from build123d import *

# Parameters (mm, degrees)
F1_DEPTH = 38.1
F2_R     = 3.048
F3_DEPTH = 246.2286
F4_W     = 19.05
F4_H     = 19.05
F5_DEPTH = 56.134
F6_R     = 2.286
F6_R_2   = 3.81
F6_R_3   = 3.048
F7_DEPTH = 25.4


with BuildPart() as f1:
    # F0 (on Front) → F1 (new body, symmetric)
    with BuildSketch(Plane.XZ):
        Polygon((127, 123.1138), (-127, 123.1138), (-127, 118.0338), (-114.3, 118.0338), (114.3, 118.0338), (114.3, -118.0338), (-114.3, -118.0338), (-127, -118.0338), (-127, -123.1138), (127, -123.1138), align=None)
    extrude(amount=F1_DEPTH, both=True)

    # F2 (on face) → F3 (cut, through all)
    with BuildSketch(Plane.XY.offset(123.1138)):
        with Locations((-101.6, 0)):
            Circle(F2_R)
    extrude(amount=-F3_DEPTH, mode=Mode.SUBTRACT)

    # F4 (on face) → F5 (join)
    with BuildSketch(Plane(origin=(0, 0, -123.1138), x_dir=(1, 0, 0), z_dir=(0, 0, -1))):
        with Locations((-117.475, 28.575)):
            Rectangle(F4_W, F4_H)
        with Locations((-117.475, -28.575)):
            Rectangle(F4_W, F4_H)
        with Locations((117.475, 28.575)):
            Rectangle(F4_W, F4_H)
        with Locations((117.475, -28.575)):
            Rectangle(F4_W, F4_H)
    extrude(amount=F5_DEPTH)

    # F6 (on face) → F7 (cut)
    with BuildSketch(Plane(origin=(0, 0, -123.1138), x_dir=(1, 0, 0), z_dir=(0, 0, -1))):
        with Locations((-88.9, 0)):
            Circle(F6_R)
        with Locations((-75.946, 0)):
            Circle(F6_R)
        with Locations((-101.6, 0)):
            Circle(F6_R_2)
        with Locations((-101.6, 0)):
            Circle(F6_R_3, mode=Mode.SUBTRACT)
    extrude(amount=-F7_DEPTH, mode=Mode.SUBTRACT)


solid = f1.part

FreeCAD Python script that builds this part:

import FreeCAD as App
import Part
import Sketcher
Q = App.Units.Quantity

doc = App.newDocument("Part")
body = doc.addObject("PartDesign::Body", "Body")

sketch1 = body.newObject("Sketcher::SketchObject", "Sketch")
sketch1.AttachmentSupport = (doc.getObject("XZ_Plane"), [""])
sketch1.MapMode = "FlatFace"
sketch1.addGeometry(Part.LineSegment(App.Vector(127, 123, 0), App.Vector(-127, 123, 0)), False)
sketch1.addGeometry(Part.LineSegment(App.Vector(-127, 123, 0), App.Vector(-127, 118, 0)), False)
sketch1.addGeometry(Part.LineSegment(App.Vector(-127, 118, 0), App.Vector(114, 118, 0)), False)
sketch1.addGeometry(Part.LineSegment(App.Vector(114, 118, 0), App.Vector(114, -118, 0)), False)
sketch1.addGeometry(Part.LineSegment(App.Vector(114, -118, 0), App.Vector(-127, -118, 0)), False)
sketch1.addGeometry(Part.LineSegment(App.Vector(-127, -118, 0), App.Vector(-127, -123, 0)), False)
sketch1.addGeometry(Part.LineSegment(App.Vector(-127, -123, 0), App.Vector(127, -123, 0)), False)
sketch1.addGeometry(Part.LineSegment(App.Vector(127, -123, 0), App.Vector(127, 123, 0)), False)
sketch1.addConstraint(Sketcher.Constraint("Coincident", 0, 2, 1, 1))
sketch1.addConstraint(Sketcher.Constraint("Coincident", 1, 2, 2, 1))
sketch1.addConstraint(Sketcher.Constraint("Coincident", 2, 2, 3, 1))
sketch1.addConstraint(Sketcher.Constraint("Coincident", 3, 2, 4, 1))
sketch1.addConstraint(Sketcher.Constraint("Coincident", 4, 2, 5, 1))
sketch1.addConstraint(Sketcher.Constraint("Coincident", 5, 2, 6, 1))
sketch1.addConstraint(Sketcher.Constraint("Coincident", 6, 2, 7, 1))
sketch1.addConstraint(Sketcher.Constraint("Coincident", 7, 2, 0, 1))
sketch1.addConstraint(Sketcher.Constraint("Horizontal", 0))
sketch1.addConstraint(Sketcher.Constraint("Vertical", 1))
sketch1.addConstraint(Sketcher.Constraint("Horizontal", 2))
sketch1.addConstraint(Sketcher.Constraint("Vertical", 3))
sketch1.addConstraint(Sketcher.Constraint("Horizontal", 4))
sketch1.addConstraint(Sketcher.Constraint("Vertical", 5))
sketch1.addConstraint(Sketcher.Constraint("Horizontal", 6))
sketch1.addConstraint(Sketcher.Constraint("Vertical", 7))
sketch1.addConstraint(Sketcher.Constraint("Symmetric", 0, 2, 6, 2, -1, 1))
sketch1.addConstraint(Sketcher.Constraint("Symmetric", 1, 2, 4, 2, -1))
sketch1.addConstraint(Sketcher.Constraint("DistanceX", 0, 2, 0, 1, Q("10 in")))
sketch1.addConstraint(Sketcher.Constraint("DistanceX", 2, 1, 2, 2, Q("9.5 in")))
sketch1.addConstraint(Sketcher.Constraint("DistanceY", 1, 2, 1, 1, Q("0.2 in")))
sketch1.addConstraint(Sketcher.Constraint("DistanceY", 3, 2, 3, 1, Q("9.294 in")))
pad1 = body.newObject("PartDesign::Pad", "Pad")
pad1.Profile = sketch1
pad1.Length = Q("3 in")
pad1.Midplane = True

sketch2 = body.newObject("Sketcher::SketchObject", "Sketch001")
sketch2.AttachmentSupport = (doc.getObject("XY_Plane"), [""])
sketch2.MapMode = "FlatFace"
sketch2.AttachmentOffset = App.Placement(App.Vector(0, 0, 4.847 * 25.4), App.Rotation())
sketch2.addGeometry(Part.Circle(App.Vector(-101.6, 0, 0), App.Vector(0, 0, 1), 3), False)
sketch2.addConstraint(Sketcher.Constraint("PointOnObject", 0, 3, -1))
sketch2.addConstraint(Sketcher.Constraint("Diameter", 0, Q("0.24 in")))
sketch2.addConstraint(Sketcher.Constraint("DistanceX", 0, 3, -1, 1, Q("4 in")))
pocket1 = body.newObject("PartDesign::Pocket", "Pocket")
pocket1.Profile = sketch2
pocket1.Type = "ThroughAll"

sketch3 = body.newObject("Sketcher::SketchObject", "Sketch002")
sketch3.AttachmentSupport = (doc.getObject("XY_Plane"), [""])
sketch3.MapMode = "FlatFace"
sketch3.AttachmentOffset = App.Placement(App.Vector(0, 0, -4.847 * 25.4), App.Rotation())
sketch3.addGeometry(Part.LineSegment(App.Vector(-127, -38, 0), App.Vector(-127, -19, 0)), False)
sketch3.addGeometry(Part.LineSegment(App.Vector(-127, -19, 0), App.Vector(-108, -19, 0)), False)
sketch3.addGeometry(Part.LineSegment(App.Vector(-108, -19, 0), App.Vector(-108, -38, 0)), False)
sketch3.addGeometry(Part.LineSegment(App.Vector(-108, -38, 0), App.Vector(-127, -38, 0)), False)
sketch3.addGeometry(Part.LineSegment(App.Vector(-127, 19, 0), App.Vector(-127, 38, 0)), False)
sketch3.addGeometry(Part.LineSegment(App.Vector(-127, 38, 0), App.Vector(-108, 38, 0)), False)
sketch3.addGeometry(Part.LineSegment(App.Vector(-108, 38, 0), App.Vector(-108, 19, 0)), False)
sketch3.addGeometry(Part.LineSegment(App.Vector(-108, 19, 0), App.Vector(-127, 19, 0)), False)
sketch3.addGeometry(Part.LineSegment(App.Vector(108, -38, 0), App.Vector(108, -19, 0)), False)
sketch3.addGeometry(Part.LineSegment(App.Vector(108, -19, 0), App.Vector(127, -19, 0)), False)
sketch3.addGeometry(Part.LineSegment(App.Vector(127, -19, 0), App.Vector(127, -38, 0)), False)
sketch3.addGeometry(Part.LineSegment(App.Vector(127, -38, 0), App.Vector(108, -38, 0)), False)
sketch3.addGeometry(Part.LineSegment(App.Vector(108, 19, 0), App.Vector(108, 38, 0)), False)
sketch3.addGeometry(Part.LineSegment(App.Vector(108, 38, 0), App.Vector(127, 38, 0)), False)
sketch3.addGeometry(Part.LineSegment(App.Vector(127, 38, 0), App.Vector(127, 19, 0)), False)
sketch3.addGeometry(Part.LineSegment(App.Vector(127, 19, 0), App.Vector(108, 19, 0)), False)
sketch3.addConstraint(Sketcher.Constraint("Coincident", 0, 2, 1, 1))
sketch3.addConstraint(Sketcher.Constraint("Coincident", 1, 2, 2, 1))
sketch3.addConstraint(Sketcher.Constraint("Coincident", 2, 2, 3, 1))
sketch3.addConstraint(Sketcher.Constraint("Coincident", 3, 2, 0, 1))
sketch3.addConstraint(Sketcher.Constraint("Coincident", 4, 2, 5, 1))
sketch3.addConstraint(Sketcher.Constraint("Coincident", 5, 2, 6, 1))
sketch3.addConstraint(Sketcher.Constraint("Coincident", 6, 2, 7, 1))
sketch3.addConstraint(Sketcher.Constraint("Coincident", 7, 2, 4, 1))
sketch3.addConstraint(Sketcher.Constraint("Coincident", 8, 2, 9, 1))
sketch3.addConstraint(Sketcher.Constraint("Coincident", 9, 2, 10, 1))
sketch3.addConstraint(Sketcher.Constraint("Coincident", 10, 2, 11, 1))
sketch3.addConstraint(Sketcher.Constraint("Coincident", 11, 2, 8, 1))
sketch3.addConstraint(Sketcher.Constraint("Coincident", 12, 2, 13, 1))
sketch3.addConstraint(Sketcher.Constraint("Coincident", 13, 2, 14, 1))
sketch3.addConstraint(Sketcher.Constraint("Coincident", 14, 2, 15, 1))
sketch3.addConstraint(Sketcher.Constraint("Coincident", 15, 2, 12, 1))
sketch3.addConstraint(Sketcher.Constraint("Vertical", 0))
sketch3.addConstraint(Sketcher.Constraint("Horizontal", 1))
sketch3.addConstraint(Sketcher.Constraint("Vertical", 2))
sketch3.addConstraint(Sketcher.Constraint("Horizontal", 3))
sketch3.addConstraint(Sketcher.Constraint("Vertical", 4))
sketch3.addConstraint(Sketcher.Constraint("Horizontal", 5))
sketch3.addConstraint(Sketcher.Constraint("Vertical", 6))
sketch3.addConstraint(Sketcher.Constraint("Horizontal", 7))
sketch3.addConstraint(Sketcher.Constraint("Vertical", 8))
sketch3.addConstraint(Sketcher.Constraint("Horizontal", 9))
sketch3.addConstraint(Sketcher.Constraint("Vertical", 10))
sketch3.addConstraint(Sketcher.Constraint("Horizontal", 11))
sketch3.addConstraint(Sketcher.Constraint("Vertical", 12))
sketch3.addConstraint(Sketcher.Constraint("Horizontal", 13))
sketch3.addConstraint(Sketcher.Constraint("Vertical", 14))
sketch3.addConstraint(Sketcher.Constraint("Horizontal", 15))
sketch3.addConstraint(Sketcher.Constraint("Symmetric", 6, 2, 8, 2, -1, 1))
sketch3.addConstraint(Sketcher.Constraint("Symmetric", 4, 2, 10, 2, -1, 1))
sketch3.addConstraint(Sketcher.Constraint("Symmetric", 2, 2, 12, 2, -1, 1))
sketch3.addConstraint(Sketcher.Constraint("Symmetric", 0, 2, 14, 2, -1, 1))
sketch3.addConstraint(Sketcher.Constraint("Symmetric", 1, 2, 8, 2, -2))
sketch3.addConstraint(Sketcher.Constraint("Symmetric", 3, 2, 10, 2, -2))
sketch3.addConstraint(Sketcher.Constraint("Equal", 15, 0))
sketch3.addConstraint(Sketcher.Constraint("DistanceX", 0, 2, -1, 1, Q("5 in")))
sketch3.addConstraint(Sketcher.Constraint("DistanceY", 3, 2, 4, 2, Q("3 in")))
sketch3.addConstraint(Sketcher.Constraint("DistanceX", 1, 1, 1, 2, Q("0.75 in")))
pad2 = body.newObject("PartDesign::Pad", "Pad001")
pad2.Profile = sketch3
pad2.Length = Q("2.21 in")
pad2.Reversed = True

sketch4 = body.newObject("Sketcher::SketchObject", "Sketch003")
sketch4.AttachmentSupport = (doc.getObject("XY_Plane"), [""])
sketch4.MapMode = "FlatFace"
sketch4.AttachmentOffset = App.Placement(App.Vector(0, 0, -4.847 * 25.4), App.Rotation())
sketch4.addGeometry(Part.Circle(App.Vector(-88.9, 0, 0), App.Vector(0, 0, 1), 2.3), False)
sketch4.addGeometry(Part.Circle(App.Vector(-75.9, 0, 0), App.Vector(0, 0, 1), 2.3), False)
sketch4.addGeometry(Part.Circle(App.Vector(-101.6, 0, 0), App.Vector(0, 0, 1), 3.8), False)
sketch4.addGeometry(Part.Circle(App.Vector(-101.6, 0, 0), App.Vector(0, 0, 1), 3), False)
sketch4.addConstraint(Sketcher.Constraint("Coincident", 3, 3, 2, 3))
sketch4.addConstraint(Sketcher.Constraint("Equal", 0, 1))
sketch4.addConstraint(Sketcher.Constraint("PointOnObject", 0, 3, -1))
sketch4.addConstraint(Sketcher.Constraint("PointOnObject", 1, 3, -1))
sketch4.addConstraint(Sketcher.Constraint("PointOnObject", 2, 3, -1))
sketch4.addConstraint(Sketcher.Constraint("Diameter", 2, Q("0.3 in")))
sketch4.addConstraint(Sketcher.Constraint("Diameter", 0, Q("0.18 in")))
sketch4.addConstraint(Sketcher.Constraint("Diameter", 3, Q("0.24 in")))
sketch4.addConstraint(Sketcher.Constraint("DistanceX", 2, 3, -1, 1, Q("4 in")))
sketch4.addConstraint(Sketcher.Constraint("DistanceX", 0, 3, -1, 1, Q("3.5 in")))
sketch4.addConstraint(Sketcher.Constraint("DistanceX", 1, 3, -1, 1, Q("2.99 in")))
pocket2 = body.newObject("PartDesign::Pocket", "Pocket001")
pocket2.Profile = sketch4
pocket2.Length = Q("1 in")
pocket2.Reversed = True

doc.recompute()
